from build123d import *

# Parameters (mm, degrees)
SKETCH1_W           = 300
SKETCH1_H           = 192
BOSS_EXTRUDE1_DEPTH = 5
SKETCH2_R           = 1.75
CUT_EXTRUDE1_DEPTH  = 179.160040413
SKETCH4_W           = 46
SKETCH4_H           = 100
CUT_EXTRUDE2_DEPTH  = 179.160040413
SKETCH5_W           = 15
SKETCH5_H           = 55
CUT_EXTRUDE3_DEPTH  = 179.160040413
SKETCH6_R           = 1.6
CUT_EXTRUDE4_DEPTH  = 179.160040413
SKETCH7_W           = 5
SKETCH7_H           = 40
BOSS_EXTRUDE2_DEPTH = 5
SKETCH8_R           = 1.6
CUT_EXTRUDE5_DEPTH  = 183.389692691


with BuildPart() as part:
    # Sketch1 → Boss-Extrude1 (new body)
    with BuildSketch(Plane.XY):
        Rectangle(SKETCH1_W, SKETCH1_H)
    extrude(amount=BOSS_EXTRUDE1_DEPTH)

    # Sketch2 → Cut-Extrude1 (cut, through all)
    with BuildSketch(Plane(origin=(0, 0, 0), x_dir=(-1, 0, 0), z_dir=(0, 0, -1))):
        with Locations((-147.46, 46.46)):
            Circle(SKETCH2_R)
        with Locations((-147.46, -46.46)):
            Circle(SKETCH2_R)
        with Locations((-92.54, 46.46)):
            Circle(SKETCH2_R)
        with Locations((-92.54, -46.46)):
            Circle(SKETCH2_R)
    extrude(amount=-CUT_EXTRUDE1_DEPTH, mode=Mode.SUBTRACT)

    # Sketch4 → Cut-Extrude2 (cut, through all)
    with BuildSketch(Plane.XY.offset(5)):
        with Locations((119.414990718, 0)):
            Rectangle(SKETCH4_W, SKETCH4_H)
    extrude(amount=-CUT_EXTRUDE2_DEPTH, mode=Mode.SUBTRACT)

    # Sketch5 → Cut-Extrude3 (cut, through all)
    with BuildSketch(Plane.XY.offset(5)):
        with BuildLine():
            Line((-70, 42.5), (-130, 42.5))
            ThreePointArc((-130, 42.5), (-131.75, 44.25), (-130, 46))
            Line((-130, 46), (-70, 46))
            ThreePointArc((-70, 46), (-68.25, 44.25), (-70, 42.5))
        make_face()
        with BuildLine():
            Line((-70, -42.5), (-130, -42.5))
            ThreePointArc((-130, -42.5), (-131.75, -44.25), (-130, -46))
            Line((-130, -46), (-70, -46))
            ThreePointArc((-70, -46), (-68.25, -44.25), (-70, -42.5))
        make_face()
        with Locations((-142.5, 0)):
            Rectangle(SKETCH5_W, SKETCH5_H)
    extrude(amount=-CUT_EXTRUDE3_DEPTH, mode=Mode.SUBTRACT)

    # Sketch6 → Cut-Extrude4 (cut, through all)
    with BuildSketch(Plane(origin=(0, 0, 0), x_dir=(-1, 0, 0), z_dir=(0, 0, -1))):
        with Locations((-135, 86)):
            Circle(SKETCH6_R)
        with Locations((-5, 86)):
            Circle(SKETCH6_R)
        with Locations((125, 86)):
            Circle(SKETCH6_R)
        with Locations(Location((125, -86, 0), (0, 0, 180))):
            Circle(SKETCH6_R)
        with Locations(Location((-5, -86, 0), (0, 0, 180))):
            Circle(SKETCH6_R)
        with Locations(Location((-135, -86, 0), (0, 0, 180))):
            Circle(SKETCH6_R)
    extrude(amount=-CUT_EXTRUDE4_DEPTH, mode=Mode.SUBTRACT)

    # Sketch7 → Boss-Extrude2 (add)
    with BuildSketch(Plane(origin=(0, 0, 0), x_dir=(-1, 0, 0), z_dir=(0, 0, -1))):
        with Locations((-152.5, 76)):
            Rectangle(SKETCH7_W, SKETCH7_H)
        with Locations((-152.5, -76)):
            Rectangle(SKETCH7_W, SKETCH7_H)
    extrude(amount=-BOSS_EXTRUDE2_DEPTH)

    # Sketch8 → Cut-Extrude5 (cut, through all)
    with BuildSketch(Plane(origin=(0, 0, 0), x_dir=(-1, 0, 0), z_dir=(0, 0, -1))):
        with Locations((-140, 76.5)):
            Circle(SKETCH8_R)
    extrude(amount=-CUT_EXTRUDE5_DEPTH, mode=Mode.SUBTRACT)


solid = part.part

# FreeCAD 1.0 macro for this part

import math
import FreeCAD as App
import Part
import Sketcher

V = App.Vector
Q = App.Units.Quantity


def add_polygon(sketch, points):
    """Adds a closed chain of lines whose ends are joined by coincident constraints."""
    first, n = sketch.GeometryCount, len(points)
    for a, b in zip(points, points[1:] + points[:1]):
        sketch.addGeometry(Part.LineSegment(App.Vector(*a, 0), App.Vector(*b, 0)), False)
    for i in range(n):
        sketch.addConstraint(Sketcher.Constraint("Coincident", first + i, 2, first + (i + 1) % n, 1))

doc = App.newDocument("Part")
body = doc.addObject("PartDesign::Body", "Body")

sketch1 = body.newObject("Sketcher::SketchObject", "Sketch")
sketch1.AttachmentSupport = (doc.getObject("XY_Plane"), [""])
sketch1.MapMode = "FlatFace"
add_polygon(sketch1, [(-150, 96), (-150, -96), (150, -96), (150, 96)])
sketch1.addConstraint([
    Sketcher.Constraint("Vertical", 0),
    Sketcher.Constraint("Horizontal", 1),
    Sketcher.Constraint("Vertical", 2),
    Sketcher.Constraint("Horizontal", 3),
    Sketcher.Constraint("Symmetric", 0, 2, 2, 2, -1, 1),
    Sketcher.Constraint("DistanceX", 1, 1, 1, 2, Q("300 mm")),
    Sketcher.Constraint("DistanceY", 0, 2, 0, 1, Q("192 mm")),
])
pad1 = body.newObject("PartDesign::Pad", "Pad")
pad1.Profile = sketch1
pad1.Length = 5

sketch2 = body.newObject("Sketcher::SketchObject", "Sketch001")
sketch2.AttachmentSupport = (doc.getObject("XY_Plane"), [""])
sketch2.MapMode = "FlatFace"
sketch2.addGeometry([
    Part.Circle(V(147.46, 46.46, 0), V(0, 0, 1), 1.75),
    Part.Circle(V(147.46, -46.46, 0), V(0, 0, 1), 1.75),
    Part.Circle(V(92.54, 46.46, 0), V(0, 0, 1), 1.75),
    Part.Circle(V(92.54, -46.46, 0), V(0, 0, 1), 1.75),
], False)
sketch2.addConstraint([
    Sketcher.Constraint("Equal", 0, 1),
    Sketcher.Constraint("Equal", 1, 2),
    Sketcher.Constraint("Equal", 2, 3),
    Sketcher.Constraint("Symmetric", 0, 3, 1, 3, -1),
    Sketcher.Constraint("Symmetric", 2, 3, 3, 3, -1),
    Sketcher.Constraint("Horizontal", 0, 3, 2, 3),
    Sketcher.Constraint("Diameter", 0, Q("3.5 mm")),
    Sketcher.Constraint("DistanceX", -1, 1, 0, 3, Q("147.46 mm")),
    Sketcher.Constraint("DistanceY", -1, 1, 0, 3, Q("46.46 mm")),
    Sketcher.Constraint("DistanceX", -1, 1, 2, 3, Q("92.54 mm")),
])
pocket1 = body.newObject("PartDesign::Pocket", "Pocket")
pocket1.Profile = sketch2
pocket1.Type = "ThroughAll"
pocket1.Reversed = True

sketch3 = body.newObject("Sketcher::SketchObject", "Sketch002")
sketch3.AttachmentSupport = (doc.getObject("XY_Plane"), [""])
sketch3.MapMode = "FlatFace"
sketch3.AttachmentOffset = App.Placement(V(0, 0, 5), App.Rotation())
add_polygon(sketch3, [(96.414991, 50), (96.414991, -50), (142.414991, -50), (142.414991, 50)])
sketch3.addConstraint([
    Sketcher.Constraint("Vertical", 0),
    Sketcher.Constraint("Horizontal", 1),
    Sketcher.Constraint("Vertical", 2),
    Sketcher.Constraint("Horizontal", 3),
    Sketcher.Constraint("DistanceX", 1, 1, 1, 2, Q("46 mm")),
    Sketcher.Constraint("DistanceY", 0, 2, 0, 1, Q("100 mm")),
    Sketcher.Constraint("DistanceY", 0, 2, -1, 1, Q("50 mm")),
    Sketcher.Constraint("DistanceX", -1, 1, 0, 2, Q("96.414991 mm")),
])
pocket2 = body.newObject("PartDesign::Pocket", "Pocket001")
pocket2.Profile = sketch3
pocket2.Type = "ThroughAll"

sketch4 = body.newObject("Sketcher::SketchObject", "Sketch003")
sketch4.AttachmentSupport = (doc.getObject("XY_Plane"), [""])
sketch4.MapMode = "FlatFace"
sketch4.AttachmentOffset = App.Placement(V(0, 0, 5), App.Rotation())
sketch4.addGeometry(Part.LineSegment(V(-130, 42.5, 0), V(-70, 42.5, 0)), False)
sketch4.addGeometry(Part.ArcOfCircle(Part.Circle(V(-70, 44.25, 0), V(0, 0, 1), 1.75), math.radians(-90), math.radians(90)), False)
sketch4.addGeometry(Part.LineSegment(V(-70, 46, 0), V(-130, 46, 0)), False)
sketch4.addGeometry(Part.ArcOfCircle(Part.Circle(V(-130, 44.25, 0), V(0, 0, 1), 1.75), math.radians(90), math.radians(270)), False)
sketch4.addGeometry(Part.LineSegment(V(-70, -42.5, 0), V(-130, -42.5, 0)), False)
sketch4.addGeometry(Part.ArcOfCircle(Part.Circle(V(-130, -44.25, 0), V(0, 0, 1), 1.75), math.radians(90), math.radians(270)), False)
sketch4.addGeometry(Part.LineSegment(V(-130, -46, 0), V(-70, -46, 0)), False)
sketch4.addGeometry(Part.ArcOfCircle(Part.Circle(V(-70, -44.25, 0), V(0, 0, 1), 1.75), math.radians(-90), math.radians(90)), False)
add_polygon(sketch4, [(-150, 27.5), (-150, -27.5), (-135, -27.5), (-135, 27.5)])
sketch4.addConstraint([
    Sketcher.Constraint("Tangent", 0, 2, 1, 1),
    Sketcher.Constraint("Tangent", 1, 2, 2, 1),
    Sketcher.Constraint("Tangent", 2, 2, 3, 1),
    Sketcher.Constraint("Tangent", 3, 2, 0, 1),
    Sketcher.Constraint("Tangent", 4, 2, 5, 1),
    Sketcher.Constraint("Tangent", 5, 2, 6, 1),
    Sketcher.Constraint("Tangent", 6, 2, 7, 1),
    Sketcher.Constraint("Tangent", 7, 2, 4, 1),
    Sketcher.Constraint("Horizontal", 0),
    Sketcher.Constraint("Horizontal", 2),
    Sketcher.Constraint("Horizontal", 4),
    Sketcher.Constraint("Horizontal", 6),
    Sketcher.Constraint("Vertical", 8),
    Sketcher.Constraint("Horizontal", 9),
    Sketcher.Constraint("Vertical", 10),
    Sketcher.Constraint("Horizontal", 11),
    Sketcher.Constraint("Equal", 3, 5),
    Sketcher.Constraint("Symmetric", 3, 3, 5, 3, -1),
    Sketcher.Constraint("Vertical", 1, 3, 7, 3),
    Sketcher.Constraint("DistanceX", 0, 1, 0, 2, Q("60 mm")),
    Sketcher.Constraint("DistanceX", 9, 1, 9, 2, Q("15 mm")),
    Sketcher.Constraint("DistanceY", 8, 2, 8, 1, Q("55 mm")),
    Sketcher.Constraint("Radius", 1, Q("1.75 mm")),
    Sketcher.Constraint("DistanceX", 1, 3, -1, 1, Q("70 mm")),
    Sketcher.Constraint("DistanceY", -1, 1, 1, 2, Q("46 mm")),
    Sketcher.Constraint("DistanceX", 8, 2, -1, 1, Q("150 mm")),
    Sketcher.Constraint("DistanceY", 4, 2, 8, 2, Q("15 mm")),
])
pocket3 = body.newObject("PartDesign::Pocket", "Pocket002")
pocket3.Profile = sketch4
pocket3.Type = "ThroughAll"

sketch5 = body.newObject("Sketcher::SketchObject", "Sketch004")
sketch5.AttachmentSupport = (doc.getObject("XY_Plane"), [""])
sketch5.MapMode = "FlatFace"
sketch5.addGeometry([
    Part.Circle(V(135, 86, 0), V(0, 0, 1), 1.6),
    Part.Circle(V(5, 86, 0), V(0, 0, 1), 1.6),
    Part.Circle(V(-125, 86, 0), V(0, 0, 1), 1.6),
    Part.Circle(V(-125, -86, 0), V(0, 0, 1), 1.6),
    Part.Circle(V(5, -86, 0), V(0, 0, 1), 1.6),
    Part.Circle(V(135, -86, 0), V(0, 0, 1), 1.6),
], False)
sketch5.addConstraint([
    Sketcher.Constraint("Equal", 0, 1),
    Sketcher.Constraint("Equal", 1, 2),
    Sketcher.Constraint("Equal", 2, 3),
    Sketcher.Constraint("Equal", 3, 4),
    Sketcher.Constraint("Equal", 4, 5),
    Sketcher.Constraint("Symmetric", 2, 3, 3, 3, -1),
    Sketcher.Constraint("Symmetric", 1, 3, 4, 3, -1),
    Sketcher.Constraint("Symmetric", 0, 3, 5, 3, -1),
    Sketcher.Constraint("Horizontal", 0, 3, 1, 3),
    Sketcher.Constraint("Horizontal", 1, 3, 2, 3),
    Sketcher.Constraint("Diameter", 0, Q("3.2 mm")),
    Sketcher.Constraint("DistanceX", -1, 1, 0, 3, Q("135 mm")),
    Sketcher.Constraint("DistanceY", -1, 1, 0, 3, Q("86 mm")),
    Sketcher.Constraint("DistanceX", -1, 1, 1, 3, Q("5 mm")),
    Sketcher.Constraint("DistanceX", 2, 3, -1, 1, Q("125 mm")),
])
pocket4 = body.newObject("PartDesign::Pocket", "Pocket003")
pocket4.Profile = sketch5
pocket4.Type = "ThroughAll"
pocket4.Reversed = True

sketch6 = body.newObject("Sketcher::SketchObject", "Sketch005")
sketch6.AttachmentSupport = (doc.getObject("XY_Plane"), [""])
sketch6.MapMode = "FlatFace"
add_polygon(sketch6, [(155, 96), (155, 56), (150, 56), (150, 96)])
add_polygon(sketch6, [(155, -56), (155, -96), (150, -96), (150, -56)])
sketch6.addConstraint([
    Sketcher.Constraint("Vertical", 0),
    Sketcher.Constraint("Horizontal", 1),
    Sketcher.Constraint("Vertical", 2),
    Sketcher.Constraint("Horizontal", 3),
    Sketcher.Constraint("Vertical", 4),
    Sketcher.Constraint("Horizontal", 5),
    Sketcher.Constraint("Vertical", 6),
    Sketcher.Constraint("Horizontal", 7),
    Sketcher.Constraint("Symmetric", 3, 2, 4, 2, -1),
    Sketcher.Constraint("Symmetric", 1, 2, 6, 2, -1),
    Sketcher.Constraint("DistanceX", 1, 2, 1, 1, Q("5 mm")),
    Sketcher.Constraint("DistanceY", 0, 2, 0, 1, Q("40 mm")),
    Sketcher.Constraint("DistanceX", -1, 1, 0, 2, Q("155 mm")),
    Sketcher.Constraint("DistanceY", -1, 1, 0, 2, Q("56 mm")),
])
pad2 = body.newObject("PartDesign::Pad", "Pad001")
pad2.Profile = sketch6
pad2.Length = 5

sketch7 = body.newObject("Sketcher::SketchObject", "Sketch006")
sketch7.AttachmentSupport = (doc.getObject("XY_Plane"), [""])
sketch7.MapMode = "FlatFace"
sketch7.addGeometry(Part.Circle(V(140, 76.5, 0), V(0, 0, 1), 1.6), False)
sketch7.addConstraint([
    Sketcher.Constraint("Diameter", 0, Q("3.2 mm")),
    Sketcher.Constraint("DistanceX", -1, 1, 0, 3, Q("140 mm")),
    Sketcher.Constraint("DistanceY", -1, 1, 0, 3, Q("76.5 mm")),
])
pocket5 = body.newObject("PartDesign::Pocket", "Pocket004")
pocket5.Profile = sketch7
pocket5.Type = "ThroughAll"
pocket5.Reversed = True

doc.recompute()
